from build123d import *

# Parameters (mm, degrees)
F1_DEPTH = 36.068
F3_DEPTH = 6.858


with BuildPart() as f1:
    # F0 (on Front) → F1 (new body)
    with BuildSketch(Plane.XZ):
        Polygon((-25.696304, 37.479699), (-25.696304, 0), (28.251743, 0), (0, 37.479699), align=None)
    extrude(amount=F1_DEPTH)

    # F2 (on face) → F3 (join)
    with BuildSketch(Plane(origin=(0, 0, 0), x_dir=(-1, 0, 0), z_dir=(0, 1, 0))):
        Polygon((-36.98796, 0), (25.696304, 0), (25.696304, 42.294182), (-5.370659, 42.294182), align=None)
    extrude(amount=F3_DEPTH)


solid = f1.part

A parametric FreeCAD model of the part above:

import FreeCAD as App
import Part
import Sketcher
Q = App.Units.Quantity

doc = App.newDocument("Part")
body = doc.addObject("PartDesign::Body", "Body")

# Sketch on XZ plane
sketch1 = doc.addObject("Sketcher::SketchObject", "Sketch")
body.addObject(sketch1)
sketch1.AttachmentSupport = (doc.XZ_Plane, [""])
sketch1.MapMode = "FlatFace"
sketch1.addGeometry([
    Part.LineSegment(App.Vector(-26, 37, 0), App.Vector(-26, 0, 0)),
    Part.LineSegment(App.Vector(-26, 0, 0), App.Vector(28, 0, 0)),
    Part.LineSegment(App.Vector(28, 0, 0), App.Vector(0, 37, 0)),
    Part.LineSegment(App.Vector(0, 37, 0), App.Vector(-26, 37, 0)),
], False)
sketch1.addConstraint([
    Sketcher.Constraint("Coincident", 0, 2, 1, 1),
    Sketcher.Constraint("Coincident", 1, 2, 2, 1),
    Sketcher.Constraint("Coincident", 2, 2, 3, 1),
    Sketcher.Constraint("Coincident", 3, 2, 0, 1),
    Sketcher.Constraint("Vertical", 0),
    Sketcher.Constraint("Horizontal", 1),
    Sketcher.Constraint("Horizontal", 3),
    Sketcher.Constraint("PointOnObject", 0, 2, -1),
    Sketcher.Constraint("PointOnObject", 2, 2, -2),
    Sketcher.Constraint("DistanceY", 0, 2, 0, 1, Q("37.479699 mm")),
    Sketcher.Constraint("DistanceX", 1, 1, 1, 2, Q("53.948047 mm")),
    Sketcher.Constraint("DistanceX", 3, 2, 3, 1, Q("25.696304 mm")),
])
pad1 = doc.addObject("PartDesign::Pad", "Pad")
body.addObject(pad1)
pad1.Profile = sketch1
pad1.Length = Q("1.42 in")

# Sketch on XZ plane
sketch2 = doc.addObject("Sketcher::SketchObject", "Sketch001")
body.addObject(sketch2)
sketch2.AttachmentSupport = (doc.XZ_Plane, [""])
sketch2.MapMode = "FlatFace"
sketch2.addGeometry([
    Part.LineSegment(App.Vector(37, 0, 0), App.Vector(-26, 0, 0)),
    Part.LineSegment(App.Vector(-26, 0, 0), App.Vector(-26, 42, 0)),
    Part.LineSegment(App.Vector(-26, 42, 0), App.Vector(5, 42, 0)),
    Part.LineSegment(App.Vector(5, 42, 0), App.Vector(37, 0, 0)),
], False)
sketch2.addConstraint([
    Sketcher.Constraint("Coincident", 0, 2, 1, 1),
    Sketcher.Constraint("Coincident", 1, 2, 2, 1),
    Sketcher.Constraint("Coincident", 2, 2, 3, 1),
    Sketcher.Constraint("Coincident", 3, 2, 0, 1),
    Sketcher.Constraint("Horizontal", 0),
    Sketcher.Constraint("Vertical", 1),
    Sketcher.Constraint("Horizontal", 2),
    Sketcher.Constraint("PointOnObject", 0, 2, -1),
    Sketcher.Constraint("DistanceX", 2, 2, 3, 2, Q("31.617301 mm")),
    Sketcher.Constraint("Distance", 3, Q("52.805791 mm")),
    Sketcher.Constraint("DistanceX", 0, 2, 0, 1, Q("62.684264 mm")),
    Sketcher.Constraint("DistanceX", -1, 1, 2, 2, Q("5.370659 mm")),
])
pad2 = doc.addObject("PartDesign::Pad", "Pad001")
body.addObject(pad2)
pad2.Profile = sketch2
pad2.Length = Q("0.27 in")
pad2.Reversed = True

doc.recompute()
